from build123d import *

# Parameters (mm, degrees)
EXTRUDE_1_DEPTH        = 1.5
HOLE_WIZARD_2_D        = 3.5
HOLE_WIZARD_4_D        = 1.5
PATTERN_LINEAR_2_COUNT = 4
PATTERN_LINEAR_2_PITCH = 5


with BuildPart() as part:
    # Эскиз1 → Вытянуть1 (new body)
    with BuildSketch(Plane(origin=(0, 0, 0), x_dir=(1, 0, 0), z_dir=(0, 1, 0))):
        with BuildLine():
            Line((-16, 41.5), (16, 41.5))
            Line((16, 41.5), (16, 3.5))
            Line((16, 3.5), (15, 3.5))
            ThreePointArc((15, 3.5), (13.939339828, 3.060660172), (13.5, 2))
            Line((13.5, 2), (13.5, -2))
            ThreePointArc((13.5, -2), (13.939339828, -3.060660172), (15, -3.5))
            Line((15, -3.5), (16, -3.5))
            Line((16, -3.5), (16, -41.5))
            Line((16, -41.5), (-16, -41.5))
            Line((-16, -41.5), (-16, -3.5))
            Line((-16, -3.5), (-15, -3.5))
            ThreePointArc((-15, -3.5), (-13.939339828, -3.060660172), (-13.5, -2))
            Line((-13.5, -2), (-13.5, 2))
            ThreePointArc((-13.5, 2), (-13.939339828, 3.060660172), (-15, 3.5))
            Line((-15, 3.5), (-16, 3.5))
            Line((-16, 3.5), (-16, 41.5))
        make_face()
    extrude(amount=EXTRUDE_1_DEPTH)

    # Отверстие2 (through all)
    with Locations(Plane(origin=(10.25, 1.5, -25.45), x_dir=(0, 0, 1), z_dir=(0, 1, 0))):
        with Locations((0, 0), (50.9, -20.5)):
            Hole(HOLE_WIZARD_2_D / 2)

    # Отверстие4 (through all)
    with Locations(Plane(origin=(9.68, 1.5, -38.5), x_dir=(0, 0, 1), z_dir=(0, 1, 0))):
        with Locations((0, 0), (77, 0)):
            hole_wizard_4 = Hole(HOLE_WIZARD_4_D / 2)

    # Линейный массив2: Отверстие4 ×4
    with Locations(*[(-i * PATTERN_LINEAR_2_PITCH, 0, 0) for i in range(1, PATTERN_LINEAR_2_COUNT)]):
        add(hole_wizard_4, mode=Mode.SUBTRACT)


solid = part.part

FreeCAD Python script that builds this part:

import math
import FreeCAD as App
import Part
import Sketcher

doc = App.newDocument("Part")
body = doc.addObject("PartDesign::Body", "Body")

# Sketch on XZ plane
sketch1 = body.newObject("Sketcher::SketchObject", "Sketch")
sketch1.AttachmentSupport = (doc.getObject("XZ_Plane"), [""])
sketch1.MapMode = "FlatFace"
sketch1.addGeometry(Part.LineSegment(App.Vector(16, -41.5, 0), App.Vector(-16, -41.5, 0)), False)
sketch1.addGeometry(Part.LineSegment(App.Vector(-16, -41.5, 0), App.Vector(-16, -3.5, 0)), False)
sketch1.addGeometry(Part.LineSegment(App.Vector(-16, -3.5, 0), App.Vector(-15, -3.5, 0)), False)
sketch1.addGeometry(Part.ArcOfCircle(Part.Circle(App.Vector(-15, -2, 0), App.Vector(0, 0, 1), 1.5), math.radians(-90), math.radians(0)), False)
sketch1.addGeometry(Part.LineSegment(App.Vector(-13.5, -2, 0), App.Vector(-13.5, 2, 0)), False)
sketch1.addGeometry(Part.ArcOfCircle(Part.Circle(App.Vector(-15, 2, 0), App.Vector(0, 0, 1), 1.5), math.radians(0), math.radians(90)), False)
sketch1.addGeometry(Part.LineSegment(App.Vector(-15, 3.5, 0), App.Vector(-16, 3.5, 0)), False)
sketch1.addGeometry(Part.LineSegment(App.Vector(-16, 3.5, 0), App.Vector(-16, 41.5, 0)), False)
sketch1.addGeometry(Part.LineSegment(App.Vector(-16, 41.5, 0), App.Vector(16, 41.5, 0)), False)
sketch1.addGeometry(Part.LineSegment(App.Vector(16, 41.5, 0), App.Vector(16, 3.5, 0)), False)
sketch1.addGeometry(Part.LineSegment(App.Vector(16, 3.5, 0), App.Vector(15, 3.5, 0)), False)
sketch1.addGeometry(Part.ArcOfCircle(Part.Circle(App.Vector(15, 2, 0), App.Vector(0, 0, 1), 1.5), math.radians(90), math.radians(180)), False)
sketch1.addGeometry(Part.LineSegment(App.Vector(13.5, 2, 0), App.Vector(13.5, -2, 0)), False)
sketch1.addGeometry(Part.ArcOfCircle(Part.Circle(App.Vector(15, -2, 0), App.Vector(0, 0, 1), 1.5), math.radians(180), math.radians(270)), False)
sketch1.addGeometry(Part.LineSegment(App.Vector(15, -3.5, 0), App.Vector(16, -3.5, 0)), False)
sketch1.addGeometry(Part.LineSegment(App.Vector(16, -3.5, 0), App.Vector(16, -41.5, 0)), False)
sketch1.addConstraint(Sketcher.Constraint("Coincident", 0, 2, 1, 1))
sketch1.addConstraint(Sketcher.Constraint("Coincident", 1, 2, 2, 1))
sketch1.addConstraint(Sketcher.Constraint("Tangent", 2, 2, 3, 1))
sketch1.addConstraint(Sketcher.Constraint("Tangent", 3, 2, 4, 1))
sketch1.addConstraint(Sketcher.Constraint("Tangent", 4, 2, 5, 1))
sketch1.addConstraint(Sketcher.Constraint("Tangent", 5, 2, 6, 1))
sketch1.addConstraint(Sketcher.Constraint("Coincident", 6, 2, 7, 1))
sketch1.addConstraint(Sketcher.Constraint("Coincident", 7, 2, 8, 1))
sketch1.addConstraint(Sketcher.Constraint("Coincident", 8, 2, 9, 1))
sketch1.addConstraint(Sketcher.Constraint("Coincident", 9, 2, 10, 1))
sketch1.addConstraint(Sketcher.Constraint("Tangent", 10, 2, 11, 1))
sketch1.addConstraint(Sketcher.Constraint("Tangent", 11, 2, 12, 1))
sketch1.addConstraint(Sketcher.Constraint("Tangent", 12, 2, 13, 1))
sketch1.addConstraint(Sketcher.Constraint("Tangent", 13, 2, 14, 1))
sketch1.addConstraint(Sketcher.Constraint("Coincident", 14, 2, 15, 1))
sketch1.addConstraint(Sketcher.Constraint("Coincident", 15, 2, 0, 1))
sketch1.addConstraint(Sketcher.Constraint("Horizontal", 0))
sketch1.addConstraint(Sketcher.Constraint("Vertical", 1))
sketch1.addConstraint(Sketcher.Constraint("Horizontal", 2))
sketch1.addConstraint(Sketcher.Constraint("Vertical", 4))
sketch1.addConstraint(Sketcher.Constraint("Horizontal", 6))
sketch1.addConstraint(Sketcher.Constraint("Vertical", 7))
sketch1.addConstraint(Sketcher.Constraint("Horizontal", 8))
sketch1.addConstraint(Sketcher.Constraint("Vertical", 9))
sketch1.addConstraint(Sketcher.Constraint("Horizontal", 10))
sketch1.addConstraint(Sketcher.Constraint("Vertical", 12))
sketch1.addConstraint(Sketcher.Constraint("Horizontal", 14))
sketch1.addConstraint(Sketcher.Constraint("Vertical", 15))
sketch1.addConstraint(Sketcher.Constraint("Equal", 3, 5))
sketch1.addConstraint(Sketcher.Constraint("Equal", 5, 11))
sketch1.addConstraint(Sketcher.Constraint("Equal", 11, 13))
sketch1.addConstraint(Sketcher.Constraint("Symmetric", 3, 3, 11, 3, -1, 1))
sketch1.addConstraint(Sketcher.Constraint("Symmetric", 0, 2, 8, 2, -1, 1))
sketch1.addConstraint(Sketcher.Constraint("Symmetric", 6, 2, 14, 2, -1, 1))
sketch1.addConstraint(Sketcher.Constraint("Symmetric", 6, 2, 9, 2, -2))
sketch1.addConstraint(Sketcher.Constraint("Radius", 3, 1.5))
sketch1.addConstraint(Sketcher.Constraint("DistanceX", 0, 2, 0, 1, 32.0))
sketch1.addConstraint(Sketcher.Constraint("DistanceX", 2, 1, 2, 2, 1.0))
sketch1.addConstraint(Sketcher.Constraint("DistanceY", 1, 1, 1, 2, 38.0))
sketch1.addConstraint(Sketcher.Constraint("DistanceY", 4, 1, 4, 2, 4.0))
pad1 = body.newObject("PartDesign::Pad", "Pad")
pad1.Profile = sketch1
pad1.Length = 1.5
pad1.Reversed = True

# Sketch on XZ plane
sketch2 = body.newObject("Sketcher::SketchObject", "Sketch001")
sketch2.AttachmentSupport = (doc.getObject("XZ_Plane"), [""])
sketch2.MapMode = "FlatFace"
sketch2.AttachmentOffset = App.Placement(App.Vector(0, 0, -1.5), App.Rotation())
sketch2.addGeometry(Part.Circle(App.Vector(10.2, -25.4, 0), App.Vector(0, 0, 1), 1.8), False)
sketch2.addGeometry(Part.Circle(App.Vector(-10.2, 25.4, 0), App.Vector(0, 0, 1), 1.8), False)
sketch2.addConstraint(Sketcher.Constraint("Equal", 0, 1))
sketch2.addConstraint(Sketcher.Constraint("Symmetric", 0, 3, 1, 3, -1, 1))
sketch2.addConstraint(Sketcher.Constraint("Diameter", 0, 3.5))
sketch2.addConstraint(Sketcher.Constraint("DistanceX", 1, 3, 0, 3, 20.5))
sketch2.addConstraint(Sketcher.Constraint("DistanceY", 0, 3, 1, 3, 50.9))
doc.recompute()
hole = body.newObject("PartDesign::Hole", "Hole")
hole.Profile = sketch2
hole.ThreadType = "None"
hole.Diameter = 3.5
hole.DepthType = "ThroughAll"
hole.Reversed = True

# Sketch on XZ plane
sketch3 = body.newObject("Sketcher::SketchObject", "Sketch002")
sketch3.AttachmentSupport = (doc.getObject("XZ_Plane"), [""])
sketch3.MapMode = "FlatFace"
sketch3.AttachmentOffset = App.Placement(App.Vector(0, 0, -1.5), App.Rotation())
sketch3.addGeometry(Part.Circle(App.Vector(9.7, -38.5, 0), App.Vector(0, 0, 1), 0.8), False)
sketch3.addGeometry(Part.Circle(App.Vector(9.7, 38.5, 0), App.Vector(0, 0, 1), 0.8), False)
sketch3.addConstraint(Sketcher.Constraint("Equal", 0, 1))
sketch3.addConstraint(Sketcher.Constraint("Symmetric", 0, 3, 1, 3, -1))
sketch3.addConstraint(Sketcher.Constraint("Diameter", 0, 1.5))
sketch3.addConstraint(Sketcher.Constraint("DistanceY", 0, 3, 1, 3, 77.0))
sketch3.addConstraint(Sketcher.Constraint("DistanceX", -1, 1, 0, 3, 9.68))
doc.recompute()
hole2 = body.newObject("PartDesign::Hole", "Hole001")
hole2.Profile = sketch3
hole2.ThreadType = "None"
hole2.Diameter = 1.5
hole2.DepthType = "ThroughAll"
hole2.Reversed = True
doc.recompute()

linearpattern = body.newObject("PartDesign::LinearPattern", "LinearPattern")
linearpattern.Originals = [hole2]
linearpattern.Direction = (doc.getObject("X_Axis"), [""])
linearpattern.Mode = "offset"
linearpattern.Offset = 5
linearpattern.Occurrences = 4
linearpattern.Reversed = True
body.Tip = linearpattern

doc.recompute()
